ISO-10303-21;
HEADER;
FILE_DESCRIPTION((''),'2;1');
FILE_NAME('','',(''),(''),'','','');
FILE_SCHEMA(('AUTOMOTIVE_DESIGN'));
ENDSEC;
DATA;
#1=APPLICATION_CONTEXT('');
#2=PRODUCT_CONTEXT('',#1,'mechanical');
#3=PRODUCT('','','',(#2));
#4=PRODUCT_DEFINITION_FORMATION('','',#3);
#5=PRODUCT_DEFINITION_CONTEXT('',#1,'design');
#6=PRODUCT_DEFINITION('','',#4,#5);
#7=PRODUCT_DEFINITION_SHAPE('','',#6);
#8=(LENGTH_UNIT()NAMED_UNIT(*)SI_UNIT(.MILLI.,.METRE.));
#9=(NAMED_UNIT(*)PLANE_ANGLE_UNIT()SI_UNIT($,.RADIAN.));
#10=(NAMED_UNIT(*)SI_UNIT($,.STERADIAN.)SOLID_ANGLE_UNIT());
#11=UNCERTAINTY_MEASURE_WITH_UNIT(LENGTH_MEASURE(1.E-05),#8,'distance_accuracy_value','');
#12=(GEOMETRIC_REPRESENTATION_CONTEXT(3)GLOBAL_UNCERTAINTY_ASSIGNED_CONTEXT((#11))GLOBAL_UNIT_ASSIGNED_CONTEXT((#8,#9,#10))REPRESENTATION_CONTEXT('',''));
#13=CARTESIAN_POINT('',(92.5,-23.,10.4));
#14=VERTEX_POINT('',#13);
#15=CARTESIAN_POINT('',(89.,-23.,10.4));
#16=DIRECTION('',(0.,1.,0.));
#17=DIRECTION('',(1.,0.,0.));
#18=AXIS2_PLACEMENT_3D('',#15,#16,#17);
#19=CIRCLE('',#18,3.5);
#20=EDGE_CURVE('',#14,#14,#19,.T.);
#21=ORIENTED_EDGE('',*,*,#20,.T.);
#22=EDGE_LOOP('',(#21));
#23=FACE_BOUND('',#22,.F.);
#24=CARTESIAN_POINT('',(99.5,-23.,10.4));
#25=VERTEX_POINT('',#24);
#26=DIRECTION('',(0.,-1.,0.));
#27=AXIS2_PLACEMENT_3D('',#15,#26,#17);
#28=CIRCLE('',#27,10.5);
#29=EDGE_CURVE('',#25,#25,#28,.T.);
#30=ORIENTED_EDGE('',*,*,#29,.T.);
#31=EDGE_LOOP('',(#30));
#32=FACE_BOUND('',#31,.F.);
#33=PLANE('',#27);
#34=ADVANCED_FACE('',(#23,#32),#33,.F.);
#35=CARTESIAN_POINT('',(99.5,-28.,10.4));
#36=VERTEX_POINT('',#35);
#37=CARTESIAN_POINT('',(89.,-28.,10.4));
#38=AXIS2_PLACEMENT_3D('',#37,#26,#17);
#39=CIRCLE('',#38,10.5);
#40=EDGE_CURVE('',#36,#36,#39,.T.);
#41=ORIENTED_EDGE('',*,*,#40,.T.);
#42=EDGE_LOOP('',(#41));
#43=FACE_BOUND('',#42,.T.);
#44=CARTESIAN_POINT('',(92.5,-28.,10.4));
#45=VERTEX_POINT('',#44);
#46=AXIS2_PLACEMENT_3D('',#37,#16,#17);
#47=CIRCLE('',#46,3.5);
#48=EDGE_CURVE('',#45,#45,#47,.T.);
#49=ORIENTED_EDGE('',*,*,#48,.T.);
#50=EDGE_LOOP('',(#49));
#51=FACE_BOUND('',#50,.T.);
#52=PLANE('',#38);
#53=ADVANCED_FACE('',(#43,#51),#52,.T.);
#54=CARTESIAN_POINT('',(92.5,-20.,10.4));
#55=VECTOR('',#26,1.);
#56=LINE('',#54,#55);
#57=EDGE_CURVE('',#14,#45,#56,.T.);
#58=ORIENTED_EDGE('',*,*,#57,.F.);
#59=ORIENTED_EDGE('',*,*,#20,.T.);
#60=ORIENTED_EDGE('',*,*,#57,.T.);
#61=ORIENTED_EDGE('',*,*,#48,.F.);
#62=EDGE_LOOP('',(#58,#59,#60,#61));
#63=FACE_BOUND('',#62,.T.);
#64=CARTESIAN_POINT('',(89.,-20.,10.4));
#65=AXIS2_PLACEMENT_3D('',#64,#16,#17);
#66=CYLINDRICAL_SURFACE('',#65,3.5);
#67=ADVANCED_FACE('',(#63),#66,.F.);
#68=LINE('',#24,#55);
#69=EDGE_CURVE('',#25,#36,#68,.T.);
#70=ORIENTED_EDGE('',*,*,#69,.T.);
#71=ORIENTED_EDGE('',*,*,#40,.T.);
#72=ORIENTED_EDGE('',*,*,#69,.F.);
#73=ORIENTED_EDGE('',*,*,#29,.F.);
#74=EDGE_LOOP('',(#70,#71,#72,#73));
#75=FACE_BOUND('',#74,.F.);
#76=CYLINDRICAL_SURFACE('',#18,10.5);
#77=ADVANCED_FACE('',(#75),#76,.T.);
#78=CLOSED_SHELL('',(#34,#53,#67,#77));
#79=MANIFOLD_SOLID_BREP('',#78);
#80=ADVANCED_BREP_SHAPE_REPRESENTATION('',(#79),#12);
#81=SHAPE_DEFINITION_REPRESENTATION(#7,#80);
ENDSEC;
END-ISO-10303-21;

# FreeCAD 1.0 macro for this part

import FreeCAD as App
import Part
import Sketcher
Q = App.Units.Quantity

doc = App.newDocument("Part")
body = doc.addObject("PartDesign::Body", "Body")

# Sketch on XY plane
sketch1 = doc.addObject("Sketcher::SketchObject", "Sketch")
body.addObject(sketch1)
sketch1.AttachmentSupport = (doc.XY_Plane, [""])
sketch1.MapMode = "FlatFace"
sketch1.AttachmentOffset = App.Placement(App.Vector(0, 0, -3), App.Rotation())
sketch1.addGeometry(Part.Circle(App.Vector(0, 0, 0), App.Vector(0, 0, 1), 3.5), False)
sketch1.addConstraint([
    Sketcher.Constraint("Coincident", 0, 3, -1, 1),
    Sketcher.Constraint("Diameter", 0, Q("7 mm")),
])
pad1 = doc.addObject("PartDesign::Pad", "Pad")
body.addObject(pad1)
pad1.Profile = sketch1
pad1.Length = 10
body2 = doc.addObject("PartDesign::Body", "Body001")

# Sketch on XY plane
sketch2 = doc.addObject("Sketcher::SketchObject", "Sketch001")
body2.addObject(sketch2)
sketch2.AttachmentSupport = (doc.getObject("XY_Plane001"), [""])
sketch2.MapMode = "FlatFace"
sketch2.addGeometry(Part.Circle(App.Vector(0, 0, 0), App.Vector(0, 0, 1), 10.5), False)
sketch2.addConstraint([
    Sketcher.Constraint("Coincident", 0, 3, -1, 1),
    Sketcher.Constraint("Diameter", 0, Q("21 mm")),
])
pad2 = doc.addObject("PartDesign::Pad", "Pad001")
body2.addObject(pad2)
pad2.Profile = sketch2
pad2.Length = 5
doc.recompute()

boolean = doc.addObject("PartDesign::Boolean", "Boolean")
body2.addObject(boolean)
boolean.Type = "Cut"
boolean.addObjects([body])
body3 = doc.addObject("PartDesign::Body", "Body002")
doc.recompute()

body2.Placement = App.Placement(App.Vector(89, -23, 10.4), App.Rotation(App.Vector(1, 0, 0), 90))
boolean2 = doc.addObject("PartDesign::Boolean", "Boolean001")
body3.addObject(boolean2)
boolean2.Type = "Fuse"
boolean2.addObjects([body2])

doc.recompute()
